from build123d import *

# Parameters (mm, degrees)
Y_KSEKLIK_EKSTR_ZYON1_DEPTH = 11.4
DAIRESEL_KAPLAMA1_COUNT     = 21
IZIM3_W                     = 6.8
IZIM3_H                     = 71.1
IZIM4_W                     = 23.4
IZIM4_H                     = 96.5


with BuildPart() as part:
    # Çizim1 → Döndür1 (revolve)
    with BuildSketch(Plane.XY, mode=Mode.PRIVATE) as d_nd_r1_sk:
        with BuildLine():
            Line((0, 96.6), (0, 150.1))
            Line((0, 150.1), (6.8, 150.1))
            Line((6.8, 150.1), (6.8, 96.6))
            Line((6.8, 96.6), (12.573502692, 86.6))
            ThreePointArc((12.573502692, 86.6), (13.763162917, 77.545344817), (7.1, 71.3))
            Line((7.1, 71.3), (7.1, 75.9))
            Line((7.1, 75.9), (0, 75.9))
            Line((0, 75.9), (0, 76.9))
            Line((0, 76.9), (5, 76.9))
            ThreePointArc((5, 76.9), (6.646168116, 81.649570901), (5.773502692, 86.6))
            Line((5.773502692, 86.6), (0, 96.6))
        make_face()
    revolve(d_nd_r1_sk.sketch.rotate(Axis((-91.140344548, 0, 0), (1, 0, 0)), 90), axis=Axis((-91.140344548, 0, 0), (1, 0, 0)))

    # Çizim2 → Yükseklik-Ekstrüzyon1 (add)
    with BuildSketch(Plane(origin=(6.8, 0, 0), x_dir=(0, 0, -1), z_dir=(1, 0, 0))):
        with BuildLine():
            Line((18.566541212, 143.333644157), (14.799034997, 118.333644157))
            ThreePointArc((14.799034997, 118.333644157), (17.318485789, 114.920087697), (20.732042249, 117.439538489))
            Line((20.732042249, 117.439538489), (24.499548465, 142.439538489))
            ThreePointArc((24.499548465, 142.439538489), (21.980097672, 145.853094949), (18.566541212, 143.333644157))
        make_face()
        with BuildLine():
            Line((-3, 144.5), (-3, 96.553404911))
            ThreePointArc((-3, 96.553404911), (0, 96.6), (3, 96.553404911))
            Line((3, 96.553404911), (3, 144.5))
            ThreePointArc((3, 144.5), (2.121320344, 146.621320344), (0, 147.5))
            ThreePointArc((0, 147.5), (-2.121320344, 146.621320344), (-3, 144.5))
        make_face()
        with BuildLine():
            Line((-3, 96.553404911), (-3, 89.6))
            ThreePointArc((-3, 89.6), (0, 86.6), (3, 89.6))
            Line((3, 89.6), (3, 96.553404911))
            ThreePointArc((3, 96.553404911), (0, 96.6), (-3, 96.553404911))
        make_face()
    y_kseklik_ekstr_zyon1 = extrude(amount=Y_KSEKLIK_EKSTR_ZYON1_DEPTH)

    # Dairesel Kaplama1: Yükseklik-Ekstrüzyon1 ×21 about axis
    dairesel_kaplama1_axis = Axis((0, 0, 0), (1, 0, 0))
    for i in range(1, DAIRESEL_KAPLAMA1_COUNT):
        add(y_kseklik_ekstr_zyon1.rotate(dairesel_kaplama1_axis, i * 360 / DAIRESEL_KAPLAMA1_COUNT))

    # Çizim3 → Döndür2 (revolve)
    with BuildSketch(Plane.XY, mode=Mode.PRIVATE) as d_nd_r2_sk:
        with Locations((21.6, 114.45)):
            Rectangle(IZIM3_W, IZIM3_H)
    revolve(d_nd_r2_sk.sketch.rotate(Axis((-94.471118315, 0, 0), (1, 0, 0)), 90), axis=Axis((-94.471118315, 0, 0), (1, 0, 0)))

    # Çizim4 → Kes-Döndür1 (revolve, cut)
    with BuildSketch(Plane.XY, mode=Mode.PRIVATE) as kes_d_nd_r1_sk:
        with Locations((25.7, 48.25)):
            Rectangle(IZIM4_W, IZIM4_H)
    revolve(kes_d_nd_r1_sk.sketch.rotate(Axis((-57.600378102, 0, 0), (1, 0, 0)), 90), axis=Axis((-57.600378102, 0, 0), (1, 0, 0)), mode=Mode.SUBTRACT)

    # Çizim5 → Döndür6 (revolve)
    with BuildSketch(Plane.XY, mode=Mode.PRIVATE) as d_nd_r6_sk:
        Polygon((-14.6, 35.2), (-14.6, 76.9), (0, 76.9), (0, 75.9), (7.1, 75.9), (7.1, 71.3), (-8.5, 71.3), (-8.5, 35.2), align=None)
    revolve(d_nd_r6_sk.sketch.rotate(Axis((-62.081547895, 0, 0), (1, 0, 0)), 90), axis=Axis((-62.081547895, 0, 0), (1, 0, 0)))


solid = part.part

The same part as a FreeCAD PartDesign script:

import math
import FreeCAD as App
import Part
import Sketcher

V = App.Vector
Q = App.Units.Quantity

doc = App.newDocument("Part")
body = doc.addObject("PartDesign::Body", "Body")

# Sketch on XY plane
sketch1 = body.newObject("Sketcher::SketchObject", "Sketch")
sketch1.AttachmentSupport = (doc.getObject("XY_Plane"), [""])
sketch1.MapMode = "FlatFace"
sketch1.addGeometry([
    Part.LineSegment(V(0, 150.1, 0), V(0, 96.6, 0)),  # 0
    Part.LineSegment(V(0, 96.6, 0), V(5.8, 86.6, 0)),  # 1
    Part.ArcOfCircle(Part.Circle(V(-3.3, 82.4, 0), V(0, 0, 1), 10), math.radians(-34), math.radians(25)),  # 2
    Part.LineSegment(V(5, 76.9, 0), V(0, 76.9, 0)),  # 3
    Part.LineSegment(V(0, 76.9, 0), V(0, 75.9, 0)),  # 4
    Part.LineSegment(V(0, 75.9, 0), V(7.1, 75.9, 0)),  # 5
    Part.LineSegment(V(7.1, 75.9, 0), V(7.1, 71.3, 0)),  # 6
    Part.ArcOfCircle(Part.Circle(V(4.3, 80.9, 0), V(0, 0, 1), 10), math.radians(-74), math.radians(35)),  # 7
    Part.LineSegment(V(12.6, 86.6, 0), V(6.8, 96.6, 0)),  # 8
    Part.LineSegment(V(6.8, 96.6, 0), V(6.8, 150.1, 0)),  # 9
    Part.LineSegment(V(6.8, 150.1, 0), V(0, 150.1, 0)),  # 10
], False)
sketch1.addConstraint([
    Sketcher.Constraint("Coincident", 0, 2, 1, 1),
    Sketcher.Constraint("Coincident", 1, 2, 2, 2),
    Sketcher.Constraint("Coincident", 2, 1, 3, 1),
    Sketcher.Constraint("Coincident", 3, 2, 4, 1),
    Sketcher.Constraint("Coincident", 4, 2, 5, 1),
    Sketcher.Constraint("Coincident", 5, 2, 6, 1),
    Sketcher.Constraint("Coincident", 6, 2, 7, 1),
    Sketcher.Constraint("Coincident", 7, 2, 8, 1),
    Sketcher.Constraint("Coincident", 8, 2, 9, 1),
    Sketcher.Constraint("Coincident", 9, 2, 10, 1),
    Sketcher.Constraint("Coincident", 10, 2, 0, 1),
    Sketcher.Constraint("Vertical", 0),
    Sketcher.Constraint("Horizontal", 3),
    Sketcher.Constraint("Vertical", 4),
    Sketcher.Constraint("Horizontal", 5),
    Sketcher.Constraint("Vertical", 6),
    Sketcher.Constraint("Vertical", 9),
    Sketcher.Constraint("Horizontal", 10),
    Sketcher.Constraint("Equal", 2, 7),
    Sketcher.Constraint("PointOnObject", 0, 2, -2),
    Sketcher.Constraint("PointOnObject", 3, 2, -2),
    Sketcher.Constraint("Parallel", 1, 8),
    Sketcher.Constraint("Horizontal", 1, 2, 7, 2),
    Sketcher.Constraint("Horizontal", 0, 2, 8, 2),
    Sketcher.Constraint("Radius", 2, 10.0),
    Sketcher.Constraint("DistanceX", 3, 2, 3, 1, 5.0),
    Sketcher.Constraint("DistanceY", 4, 2, 4, 1, 1.0),
    Sketcher.Constraint("Angle", 1, Q("-60 deg")),
    Sketcher.Constraint("DistanceX", 5, 1, 5, 2, 7.1),
    Sketcher.Constraint("DistanceX", 10, 2, 10, 1, 6.8),
    Sketcher.Constraint("DistanceY", 0, 2, 0, 1, 53.5),
    Sketcher.Constraint("DistanceY", 6, 2, 6, 1, 4.6),
    Sketcher.Constraint("DistanceY", 1, 2, 0, 2, 10.0),
    Sketcher.Constraint("DistanceY", -1, 1, 0, 2, 96.6),
    Sketcher.Constraint("DistanceY", -1, 1, 2, 1, 76.9),
])
revolution = body.newObject("PartDesign::Revolution", "Revolution")
revolution.Profile = sketch1
revolution.ReferenceAxis = (sketch1, ["H_Axis"])
revolution.Angle = 360

# Sketch on YZ plane
sketch2 = body.newObject("Sketcher::SketchObject", "Sketch001")
sketch2.AttachmentSupport = (doc.getObject("YZ_Plane"), [""])
sketch2.MapMode = "FlatFace"
sketch2.AttachmentOffset = App.Placement(V(0, 0, 6.8), App.Rotation())
sketch2.addGeometry([
    Part.LineSegment(V(143.3, -18.6, 0), V(118.3, -14.8, 0)),  # 0
    Part.ArcOfCircle(Part.Circle(V(117.9, -17.8, 0), V(0, 0, 1), 3), math.radians(81), math.radians(261)),  # 1
    Part.LineSegment(V(117.4, -20.7, 0), V(142.4, -24.5, 0)),  # 2
    Part.ArcOfCircle(Part.Circle(V(142.9, -21.5, 0), V(0, 0, 1), 3), math.radians(-99), math.radians(81)),  # 3
    Part.LineSegment(V(144.5, 3, 0), V(89.6, 3, 0)),  # 4
    Part.ArcOfCircle(Part.Circle(V(89.6, 0, 0), V(0, 0, 1), 3), math.radians(90), math.radians(270)),  # 5
    Part.LineSegment(V(89.6, -3, 0), V(144.5, -3, 0)),  # 6
    Part.ArcOfCircle(Part.Circle(V(144.5, 0, 0), V(0, 0, 1), 3), math.radians(-90), math.radians(0)),  # 7
    Part.ArcOfCircle(Part.Circle(V(144.5, 0, 0), V(0, 0, 1), 3), math.radians(0), math.radians(90)),  # 8
], False)
sketch2.addConstraint([
    Sketcher.Constraint("Tangent", 0, 2, 1, 1),
    Sketcher.Constraint("Tangent", 1, 2, 2, 1),
    Sketcher.Constraint("Tangent", 2, 2, 3, 1),
    Sketcher.Constraint("Tangent", 3, 2, 0, 1),
    Sketcher.Constraint("Tangent", 4, 2, 5, 1),
    Sketcher.Constraint("Tangent", 5, 2, 6, 1),
    Sketcher.Constraint("Tangent", 6, 2, 7, 1),
    Sketcher.Constraint("Tangent", 7, 2, 8, 1),
    Sketcher.Constraint("Tangent", 8, 2, 4, 1),
    Sketcher.Constraint("Horizontal", 4),
    Sketcher.Constraint("Horizontal", 6),
    Sketcher.Constraint("Equal", 1, 3),
    Sketcher.Constraint("Equal", 3, 5),
    Sketcher.Constraint("Equal", 5, 7),
    Sketcher.Constraint("PointOnObject", 5, 3, -1),
    Sketcher.Constraint("PointOnObject", 7, 2, -1),
    Sketcher.Constraint("Radius", 1, 3.0),
    Sketcher.Constraint("DistanceX", 4, 2, 4, 1, 54.9),
    Sketcher.Constraint("DistanceX", 1, 3, 3, 3, 25.0),
    Sketcher.Constraint("DistanceX", -1, 1, 5, 3, 89.6),
    Sketcher.Constraint("Angle", 0, Q("171.43 deg")),
    Sketcher.Constraint("DistanceX", -1, 1, 1, 3, 117.886591),
    Sketcher.Constraint("DistanceY", 1, 3, -1, 1, 17.765539),
])
pad1 = body.newObject("PartDesign::Pad", "Pad")
pad1.Profile = sketch2
pad1.Length = 11.4
doc.recompute()

polarpattern = body.newObject("PartDesign::PolarPattern", "PolarPattern")
polarpattern.Originals = [pad1]
polarpattern.Axis = (doc.getObject("X_Axis"), [""])
polarpattern.Angle = 360
polarpattern.Occurrences = 21
body.Tip = polarpattern

# Sketch on XY plane
sketch3 = body.newObject("Sketcher::SketchObject", "Sketch002")
sketch3.AttachmentSupport = (doc.getObject("XY_Plane"), [""])
sketch3.MapMode = "FlatFace"
sketch3.addGeometry([
    Part.LineSegment(V(18, 150, 0), V(18, 79, 0)),
    Part.LineSegment(V(18, 79, 0), V(25, 79, 0)),
    Part.LineSegment(V(25, 79, 0), V(25, 150, 0)),
    Part.LineSegment(V(25, 150, 0), V(18, 150, 0)),
], False)
sketch3.addConstraint([
    Sketcher.Constraint("Coincident", 0, 2, 1, 1),
    Sketcher.Constraint("Coincident", 1, 2, 2, 1),
    Sketcher.Constraint("Coincident", 2, 2, 3, 1),
    Sketcher.Constraint("Coincident", 3, 2, 0, 1),
    Sketcher.Constraint("Vertical", 0),
    Sketcher.Constraint("Horizontal", 1),
    Sketcher.Constraint("Vertical", 2),
    Sketcher.Constraint("Horizontal", 3),
    Sketcher.Constraint("DistanceX", 1, 1, 1, 2, 6.8),
    Sketcher.Constraint("DistanceY", 0, 2, 0, 1, 71.1),
    Sketcher.Constraint("DistanceX", -1, 1, 1, 2, 25.0),
    Sketcher.Constraint("DistanceY", -1, 1, 2, 2, 150.0),
])
revolution2 = body.newObject("PartDesign::Revolution", "Revolution001")
revolution2.Profile = sketch3
revolution2.ReferenceAxis = (sketch3, ["H_Axis"])
revolution2.Angle = 360

# Sketch on XY plane
sketch4 = body.newObject("Sketcher::SketchObject", "Sketch003")
sketch4.AttachmentSupport = (doc.getObject("XY_Plane"), [""])
sketch4.MapMode = "FlatFace"
sketch4.addGeometry([
    Part.LineSegment(V(14, 96, 0), V(14, 0, 0)),
    Part.LineSegment(V(14, 0, 0), V(37, 0, 0)),
    Part.LineSegment(V(37, 0, 0), V(37, 96, 0)),
    Part.LineSegment(V(37, 96, 0), V(14, 96, 0)),
], False)
sketch4.addConstraint([
    Sketcher.Constraint("Coincident", 0, 2, 1, 1),
    Sketcher.Constraint("Coincident", 1, 2, 2, 1),
    Sketcher.Constraint("Coincident", 2, 2, 3, 1),
    Sketcher.Constraint("Coincident", 3, 2, 0, 1),
    Sketcher.Constraint("Vertical", 0),
    Sketcher.Constraint("Horizontal", 1),
    Sketcher.Constraint("Vertical", 2),
    Sketcher.Constraint("Horizontal", 3),
    Sketcher.Constraint("PointOnObject", 0, 2, -1),
    Sketcher.Constraint("DistanceX", 1, 1, 1, 2, 23.4),
    Sketcher.Constraint("DistanceY", 0, 2, 0, 1, 96.5),
    Sketcher.Constraint("DistanceX", -1, 1, 0, 2, 14.0),
])
groove = body.newObject("PartDesign::Groove", "Groove")
groove.Profile = sketch4
groove.ReferenceAxis = (sketch4, ["H_Axis"])
groove.Angle = 360

# Sketch on XY plane
sketch5 = body.newObject("Sketcher::SketchObject", "Sketch004")
sketch5.AttachmentSupport = (doc.getObject("XY_Plane"), [""])
sketch5.MapMode = "FlatFace"
sketch5.addGeometry([
    Part.LineSegment(V(-14.6, 76.9, 0), V(-14.6, 35.2, 0)),  # 0
    Part.LineSegment(V(-14.6, 35.2, 0), V(-8.5, 35.2, 0)),  # 1
    Part.LineSegment(V(-8.5, 35.2, 0), V(-8.5, 71.3, 0)),  # 2
    Part.LineSegment(V(-8.5, 71.3, 0), V(7.1, 71.3, 0)),  # 3
    Part.LineSegment(V(7.1, 71.3, 0), V(7.1, 75.9, 0)),  # 4
    Part.LineSegment(V(7.1, 75.9, 0), V(0, 75.9, 0)),  # 5
    Part.LineSegment(V(0, 75.9, 0), V(0, 76.9, 0)),  # 6
    Part.LineSegment(V(0, 76.9, 0), V(-14.6, 76.9, 0)),  # 7
], False)
sketch5.addConstraint([
    Sketcher.Constraint("Coincident", 0, 2, 1, 1),
    Sketcher.Constraint("Coincident", 1, 2, 2, 1),
    Sketcher.Constraint("Coincident", 2, 2, 3, 1),
    Sketcher.Constraint("Coincident", 3, 2, 4, 1),
    Sketcher.Constraint("Coincident", 4, 2, 5, 1),
    Sketcher.Constraint("Coincident", 5, 2, 6, 1),
    Sketcher.Constraint("Coincident", 6, 2, 7, 1),
    Sketcher.Constraint("Coincident", 7, 2, 0, 1),
    Sketcher.Constraint("Vertical", 0),
    Sketcher.Constraint("Horizontal", 1),
    Sketcher.Constraint("Vertical", 2),
    Sketcher.Constraint("Horizontal", 3),
    Sketcher.Constraint("Vertical", 4),
    Sketcher.Constraint("Horizontal", 5),
    Sketcher.Constraint("Vertical", 6),
    Sketcher.Constraint("Horizontal", 7),
    Sketcher.Constraint("PointOnObject", 5, 2, -2),
    Sketcher.Constraint("DistanceY", 6, 1, 6, 2, 1.0),
    Sketcher.Constraint("DistanceX", 1, 1, 1, 2, 6.1),
    Sketcher.Constraint("DistanceX", 3, 1, 3, 2, 15.6),
    Sketcher.Constraint("DistanceX", 5, 2, 5, 1, 7.1),
    Sketcher.Constraint("DistanceY", 0, 2, 0, 1, 41.7),
    Sketcher.Constraint("DistanceY", 2, 1, 2, 2, 36.1),
    Sketcher.Constraint("DistanceY", -1, 1, 0, 2, 35.2),
])
revolution3 = body.newObject("PartDesign::Revolution", "Revolution002")
revolution3.Profile = sketch5
revolution3.ReferenceAxis = (sketch5, ["H_Axis"])
revolution3.Angle = 360

doc.recompute()
